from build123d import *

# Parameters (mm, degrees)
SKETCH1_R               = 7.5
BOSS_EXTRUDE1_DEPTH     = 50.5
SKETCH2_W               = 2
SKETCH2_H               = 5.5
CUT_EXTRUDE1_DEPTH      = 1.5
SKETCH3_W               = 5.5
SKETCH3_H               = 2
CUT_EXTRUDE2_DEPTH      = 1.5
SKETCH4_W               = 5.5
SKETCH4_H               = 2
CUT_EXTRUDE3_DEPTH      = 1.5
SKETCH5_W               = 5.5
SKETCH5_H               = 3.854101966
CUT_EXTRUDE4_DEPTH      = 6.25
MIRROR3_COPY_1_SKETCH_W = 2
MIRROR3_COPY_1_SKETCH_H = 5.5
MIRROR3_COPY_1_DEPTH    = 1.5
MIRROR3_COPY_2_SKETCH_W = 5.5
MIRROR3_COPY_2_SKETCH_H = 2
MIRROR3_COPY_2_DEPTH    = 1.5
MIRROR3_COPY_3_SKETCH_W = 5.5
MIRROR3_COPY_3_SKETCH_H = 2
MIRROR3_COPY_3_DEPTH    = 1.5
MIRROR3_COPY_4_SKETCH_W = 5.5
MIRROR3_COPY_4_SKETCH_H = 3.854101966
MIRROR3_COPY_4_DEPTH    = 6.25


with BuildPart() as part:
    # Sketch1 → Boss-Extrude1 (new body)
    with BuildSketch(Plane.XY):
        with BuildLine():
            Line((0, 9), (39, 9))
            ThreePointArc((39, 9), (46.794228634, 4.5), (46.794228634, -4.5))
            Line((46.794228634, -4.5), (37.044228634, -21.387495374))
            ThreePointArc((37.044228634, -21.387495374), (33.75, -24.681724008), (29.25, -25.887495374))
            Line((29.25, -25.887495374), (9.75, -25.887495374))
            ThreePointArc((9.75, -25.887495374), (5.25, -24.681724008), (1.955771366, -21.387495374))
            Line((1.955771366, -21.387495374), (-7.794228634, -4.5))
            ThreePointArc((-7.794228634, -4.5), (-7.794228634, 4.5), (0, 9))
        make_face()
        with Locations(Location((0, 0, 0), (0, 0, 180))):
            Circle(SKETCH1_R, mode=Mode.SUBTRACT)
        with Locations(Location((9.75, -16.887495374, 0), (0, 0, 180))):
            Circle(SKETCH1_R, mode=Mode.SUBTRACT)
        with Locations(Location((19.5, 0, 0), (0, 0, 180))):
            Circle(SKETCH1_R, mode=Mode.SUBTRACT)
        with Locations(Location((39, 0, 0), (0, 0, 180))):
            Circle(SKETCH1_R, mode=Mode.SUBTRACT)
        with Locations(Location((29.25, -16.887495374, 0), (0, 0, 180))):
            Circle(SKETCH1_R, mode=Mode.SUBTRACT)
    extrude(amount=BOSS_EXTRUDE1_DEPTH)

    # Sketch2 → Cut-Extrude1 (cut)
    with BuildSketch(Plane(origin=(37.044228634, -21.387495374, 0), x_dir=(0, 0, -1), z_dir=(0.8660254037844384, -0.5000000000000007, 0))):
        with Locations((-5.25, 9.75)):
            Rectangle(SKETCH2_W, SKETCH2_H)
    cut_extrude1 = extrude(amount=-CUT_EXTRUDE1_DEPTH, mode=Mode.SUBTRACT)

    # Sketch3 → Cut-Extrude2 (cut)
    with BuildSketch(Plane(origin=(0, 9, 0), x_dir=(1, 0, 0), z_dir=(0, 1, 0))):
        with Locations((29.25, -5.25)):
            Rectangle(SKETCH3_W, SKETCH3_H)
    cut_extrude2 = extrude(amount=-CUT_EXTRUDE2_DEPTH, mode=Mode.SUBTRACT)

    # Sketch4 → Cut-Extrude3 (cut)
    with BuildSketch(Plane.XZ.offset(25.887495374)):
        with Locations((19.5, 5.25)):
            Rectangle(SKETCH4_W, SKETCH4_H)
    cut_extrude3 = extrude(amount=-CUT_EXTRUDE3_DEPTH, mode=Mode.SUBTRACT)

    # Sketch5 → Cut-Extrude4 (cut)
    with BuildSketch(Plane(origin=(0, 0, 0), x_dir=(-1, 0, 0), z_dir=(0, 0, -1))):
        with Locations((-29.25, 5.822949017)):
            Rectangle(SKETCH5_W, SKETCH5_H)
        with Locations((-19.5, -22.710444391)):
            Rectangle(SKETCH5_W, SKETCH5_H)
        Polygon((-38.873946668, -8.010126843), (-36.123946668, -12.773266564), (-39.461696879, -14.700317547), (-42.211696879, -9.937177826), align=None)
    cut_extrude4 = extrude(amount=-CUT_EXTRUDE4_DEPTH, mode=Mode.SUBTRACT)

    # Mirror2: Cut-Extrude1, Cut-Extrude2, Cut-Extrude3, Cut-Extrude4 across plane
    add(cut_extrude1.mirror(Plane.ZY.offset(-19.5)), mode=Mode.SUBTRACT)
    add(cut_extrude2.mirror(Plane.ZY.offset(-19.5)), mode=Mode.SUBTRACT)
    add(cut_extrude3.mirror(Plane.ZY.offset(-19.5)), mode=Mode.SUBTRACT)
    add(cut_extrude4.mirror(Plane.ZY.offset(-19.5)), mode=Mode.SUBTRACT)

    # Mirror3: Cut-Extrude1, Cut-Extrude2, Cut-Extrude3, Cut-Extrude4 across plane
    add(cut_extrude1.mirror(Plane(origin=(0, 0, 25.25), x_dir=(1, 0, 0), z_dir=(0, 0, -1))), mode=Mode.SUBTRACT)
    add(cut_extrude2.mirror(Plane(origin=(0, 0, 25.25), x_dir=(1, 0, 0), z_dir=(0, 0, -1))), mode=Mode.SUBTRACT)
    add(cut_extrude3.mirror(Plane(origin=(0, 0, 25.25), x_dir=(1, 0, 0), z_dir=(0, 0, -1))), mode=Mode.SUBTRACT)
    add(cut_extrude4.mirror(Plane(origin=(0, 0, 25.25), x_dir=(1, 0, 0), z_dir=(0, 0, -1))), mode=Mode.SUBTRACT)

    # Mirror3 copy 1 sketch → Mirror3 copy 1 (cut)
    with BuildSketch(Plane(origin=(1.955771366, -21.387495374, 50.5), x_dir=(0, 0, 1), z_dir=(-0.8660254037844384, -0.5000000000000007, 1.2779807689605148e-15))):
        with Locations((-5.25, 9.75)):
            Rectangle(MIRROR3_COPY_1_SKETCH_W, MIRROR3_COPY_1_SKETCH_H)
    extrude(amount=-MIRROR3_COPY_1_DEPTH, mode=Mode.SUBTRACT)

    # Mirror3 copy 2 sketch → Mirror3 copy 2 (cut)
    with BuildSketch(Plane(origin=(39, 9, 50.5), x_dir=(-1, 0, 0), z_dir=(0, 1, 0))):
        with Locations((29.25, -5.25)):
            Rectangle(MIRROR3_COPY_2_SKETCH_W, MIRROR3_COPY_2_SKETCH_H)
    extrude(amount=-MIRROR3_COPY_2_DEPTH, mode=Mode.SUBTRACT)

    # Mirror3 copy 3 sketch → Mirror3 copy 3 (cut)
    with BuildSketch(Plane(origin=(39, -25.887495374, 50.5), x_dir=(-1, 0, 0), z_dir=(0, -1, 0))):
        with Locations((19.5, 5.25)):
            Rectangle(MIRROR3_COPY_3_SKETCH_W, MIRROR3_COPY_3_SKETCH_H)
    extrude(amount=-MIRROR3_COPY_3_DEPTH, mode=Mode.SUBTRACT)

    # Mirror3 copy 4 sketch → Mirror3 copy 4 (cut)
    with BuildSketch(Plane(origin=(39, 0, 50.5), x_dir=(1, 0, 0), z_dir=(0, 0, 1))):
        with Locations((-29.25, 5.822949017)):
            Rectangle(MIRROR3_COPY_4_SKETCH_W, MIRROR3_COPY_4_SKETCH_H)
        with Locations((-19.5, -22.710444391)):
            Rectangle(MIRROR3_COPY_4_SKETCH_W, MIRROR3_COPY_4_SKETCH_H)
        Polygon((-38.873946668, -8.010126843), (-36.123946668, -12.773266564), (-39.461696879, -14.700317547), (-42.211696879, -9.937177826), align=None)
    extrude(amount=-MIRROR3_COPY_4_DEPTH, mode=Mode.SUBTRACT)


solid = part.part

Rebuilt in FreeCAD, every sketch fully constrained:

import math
import FreeCAD as App
import Part
import Sketcher
Q = App.Units.Quantity

doc = App.newDocument("Part")
body = doc.addObject("PartDesign::Body", "Body")

sketch1 = body.newObject("Sketcher::SketchObject", "Sketch")
sketch1.AttachmentSupport = (doc.getObject("XY_Plane"), [""])
sketch1.MapMode = "FlatFace"
sketch1.addGeometry([
    Part.LineSegment(App.Vector(39, 9, 0), App.Vector(0, 9, 0)),
    Part.ArcOfCircle(Part.Circle(App.Vector(0, 0, 0), App.Vector(0, 0, 1), 9), math.radians(90), math.radians(210)),
    Part.LineSegment(App.Vector(-8, -4, 0), App.Vector(2, -21, 0)),
    Part.ArcOfCircle(Part.Circle(App.Vector(10, -17, 0), App.Vector(0, 0, 1), 9), math.radians(-150), math.radians(-90)),
    Part.LineSegment(App.Vector(10, -26, 0), App.Vector(29, -26, 0)),
    Part.ArcOfCircle(Part.Circle(App.Vector(29, -17, 0), App.Vector(0, 0, 1), 9), math.radians(-90), math.radians(-30)),
    Part.LineSegment(App.Vector(37, -21, 0), App.Vector(47, -4, 0)),
    Part.ArcOfCircle(Part.Circle(App.Vector(39, 0, 0), App.Vector(0, 0, 1), 9), math.radians(-30), math.radians(90)),
    Part.Circle(App.Vector(29, -17, 0), App.Vector(0, 0, 1), 8),
    Part.Circle(App.Vector(10, -17, 0), App.Vector(0, 0, 1), 8),
    Part.Circle(App.Vector(39, 0, 0), App.Vector(0, 0, 1), 8),
    Part.Circle(App.Vector(20, 0, 0), App.Vector(0, 0, 1), 8),
    Part.Circle(App.Vector(0, 0, 0), App.Vector(0, 0, 1), 8),
], False)
sketch1.addConstraint([
    Sketcher.Constraint("Tangent", 0, 2, 1, 1),
    Sketcher.Constraint("Tangent", 1, 2, 2, 1),
    Sketcher.Constraint("Tangent", 2, 2, 3, 1),
    Sketcher.Constraint("Tangent", 3, 2, 4, 1),
    Sketcher.Constraint("Tangent", 4, 2, 5, 1),
    Sketcher.Constraint("Tangent", 5, 2, 6, 1),
    Sketcher.Constraint("Tangent", 6, 2, 7, 1),
    Sketcher.Constraint("Tangent", 7, 2, 0, 1),
    Sketcher.Constraint("Horizontal", 0),
    Sketcher.Constraint("Horizontal", 4),
    Sketcher.Constraint("Coincident", 1, 3, -1, 1),
    Sketcher.Constraint("Coincident", 12, 3, -1, 1),
    Sketcher.Constraint("Coincident", 8, 3, 5, 3),
    Sketcher.Constraint("Coincident", 9, 3, 3, 3),
    Sketcher.Constraint("Coincident", 10, 3, 7, 3),
    Sketcher.Constraint("Equal", 1, 3),
    Sketcher.Constraint("Equal", 3, 5),
    Sketcher.Constraint("Equal", 5, 7),
    Sketcher.Constraint("Equal", 8, 9),
    Sketcher.Constraint("Equal", 9, 10),
    Sketcher.Constraint("Equal", 10, 11),
    Sketcher.Constraint("Equal", 11, 12),
    Sketcher.Constraint("PointOnObject", 11, 3, -1),
    Sketcher.Constraint("Horizontal", 2, 2, 5, 2),
    Sketcher.Constraint("Diameter", 8, 15.0),
    Sketcher.Constraint("Radius", 1, 9.0),
    Sketcher.Constraint("DistanceX", 0, 2, 0, 1, 39.0),
    Sketcher.Constraint("Angle", 2, Q("-60 deg")),
    Sketcher.Constraint("DistanceX", 4, 1, 4, 2, 19.5),
    Sketcher.Constraint("DistanceX", -1, 1, 11, 3, 19.5),
])
pad1 = body.newObject("PartDesign::Pad", "Pad")
pad1.Profile = sketch1
pad1.Length = 50.5

sketch2 = body.newObject("Sketcher::SketchObject", "Sketch001")
sketch2.Placement = App.Placement(App.Vector(37.044229, -21.387495, 0), App.Rotation(App.Vector(0, 0, -1), App.Vector(0.5, 0.866025404, 0), App.Vector(0.866025404, -0.5, 0), "ZXY"))
sketch2.addGeometry([
    Part.LineSegment(App.Vector(-6.2, 12.5, 0), App.Vector(-6.2, 7, 0)),
    Part.LineSegment(App.Vector(-6.2, 7, 0), App.Vector(-4.2, 7, 0)),
    Part.LineSegment(App.Vector(-4.2, 7, 0), App.Vector(-4.2, 12.5, 0)),
    Part.LineSegment(App.Vector(-4.2, 12.5, 0), App.Vector(-6.2, 12.5, 0)),
], False)
sketch2.addConstraint([
    Sketcher.Constraint("Coincident", 0, 2, 1, 1),
    Sketcher.Constraint("Coincident", 1, 2, 2, 1),
    Sketcher.Constraint("Coincident", 2, 2, 3, 1),
    Sketcher.Constraint("Coincident", 3, 2, 0, 1),
    Sketcher.Constraint("Vertical", 0),
    Sketcher.Constraint("Horizontal", 1),
    Sketcher.Constraint("Vertical", 2),
    Sketcher.Constraint("Horizontal", 3),
    Sketcher.Constraint("DistanceX", 1, 1, 1, 2, 2.0),
    Sketcher.Constraint("DistanceY", 0, 2, 0, 1, 5.5),
    Sketcher.Constraint("DistanceY", -1, 1, 0, 2, 7.0),
    Sketcher.Constraint("DistanceX", 0, 2, -1, 1, 6.25),
])
pocket1 = body.newObject("PartDesign::Pocket", "Pocket")
pocket1.Profile = sketch2
pocket1.Length = 1.5

sketch3 = body.newObject("Sketcher::SketchObject", "Sketch002")
sketch3.AttachmentSupport = (doc.getObject("XZ_Plane"), [""])
sketch3.MapMode = "FlatFace"
sketch3.AttachmentOffset = App.Placement(App.Vector(0, 0, -9), App.Rotation())
sketch3.addGeometry([
    Part.LineSegment(App.Vector(26.5, 4.2, 0), App.Vector(26.5, 6.2, 0)),
    Part.LineSegment(App.Vector(26.5, 6.2, 0), App.Vector(32, 6.2, 0)),
    Part.LineSegment(App.Vector(32, 6.2, 0), App.Vector(32, 4.2, 0)),
    Part.LineSegment(App.Vector(32, 4.2, 0), App.Vector(26.5, 4.2, 0)),
], False)
sketch3.addConstraint([
    Sketcher.Constraint("Coincident", 0, 2, 1, 1),
    Sketcher.Constraint("Coincident", 1, 2, 2, 1),
    Sketcher.Constraint("Coincident", 2, 2, 3, 1),
    Sketcher.Constraint("Coincident", 3, 2, 0, 1),
    Sketcher.Constraint("Vertical", 0),
    Sketcher.Constraint("Horizontal", 1),
    Sketcher.Constraint("Vertical", 2),
    Sketcher.Constraint("Horizontal", 3),
    Sketcher.Constraint("DistanceY", 0, 1, 0, 2, 2.0),
    Sketcher.Constraint("DistanceX", 1, 1, 1, 2, 5.5),
    Sketcher.Constraint("DistanceX", -1, 1, 1, 2, 32.0),
    Sketcher.Constraint("DistanceY", -1, 1, 0, 2, 6.25),
])
pocket2 = body.newObject("PartDesign::Pocket", "Pocket001")
pocket2.Profile = sketch3
pocket2.Length = 1.5
pocket2.Reversed = True

sketch4 = body.newObject("Sketcher::SketchObject", "Sketch003")
sketch4.AttachmentSupport = (doc.getObject("XZ_Plane"), [""])
sketch4.MapMode = "FlatFace"
sketch4.AttachmentOffset = App.Placement(App.Vector(0, 0, 25.887495), App.Rotation())
sketch4.addGeometry([
    Part.LineSegment(App.Vector(16.8, 6.2, 0), App.Vector(16.8, 4.2, 0)),
    Part.LineSegment(App.Vector(16.8, 4.2, 0), App.Vector(22.2, 4.2, 0)),
    Part.LineSegment(App.Vector(22.2, 4.2, 0), App.Vector(22.2, 6.2, 0)),
    Part.LineSegment(App.Vector(22.2, 6.2, 0), App.Vector(16.8, 6.2, 0)),
], False)
sketch4.addConstraint([
    Sketcher.Constraint("Coincident", 0, 2, 1, 1),
    Sketcher.Constraint("Coincident", 1, 2, 2, 1),
    Sketcher.Constraint("Coincident", 2, 2, 3, 1),
    Sketcher.Constraint("Coincident", 3, 2, 0, 1),
    Sketcher.Constraint("Vertical", 0),
    Sketcher.Constraint("Horizontal", 1),
    Sketcher.Constraint("Vertical", 2),
    Sketcher.Constraint("Horizontal", 3),
    Sketcher.Constraint("DistanceY", 0, 2, 0, 1, 2.0),
    Sketcher.Constraint("DistanceX", 1, 1, 1, 2, 5.5),
    Sketcher.Constraint("DistanceX", -1, 1, 0, 2, 16.75),
    Sketcher.Constraint("DistanceY", -1, 1, 0, 2, 4.25),
])
pocket3 = body.newObject("PartDesign::Pocket", "Pocket002")
pocket3.Profile = sketch4
pocket3.Length = 1.5

sketch5 = body.newObject("Sketcher::SketchObject", "Sketch004")
sketch5.AttachmentSupport = (doc.getObject("XY_Plane"), [""])
sketch5.MapMode = "FlatFace"
sketch5.addGeometry([
    Part.LineSegment(App.Vector(32, 7.8, 0), App.Vector(32, 3.9, 0)),
    Part.LineSegment(App.Vector(32, 3.9, 0), App.Vector(26.5, 3.9, 0)),
    Part.LineSegment(App.Vector(26.5, 3.9, 0), App.Vector(26.5, 7.8, 0)),
    Part.LineSegment(App.Vector(26.5, 7.8, 0), App.Vector(32, 7.8, 0)),
    Part.LineSegment(App.Vector(22.2, -20.8, 0), App.Vector(22.2, -24.6, 0)),
    Part.LineSegment(App.Vector(22.2, -24.6, 0), App.Vector(16.8, -24.6, 0)),
    Part.LineSegment(App.Vector(16.8, -24.6, 0), App.Vector(16.8, -20.8, 0)),
    Part.LineSegment(App.Vector(16.8, -20.8, 0), App.Vector(22.2, -20.8, 0)),
    Part.LineSegment(App.Vector(36.1, -12.8, 0), App.Vector(38.9, -8, 0)),
    Part.LineSegment(App.Vector(38.9, -8, 0), App.Vector(42.2, -9.9, 0)),
    Part.LineSegment(App.Vector(42.2, -9.9, 0), App.Vector(39.5, -14.7, 0)),
    Part.LineSegment(App.Vector(39.5, -14.7, 0), App.Vector(36.1, -12.8, 0)),
], False)
sketch5.addConstraint([
    Sketcher.Constraint("Coincident", 0, 2, 1, 1),
    Sketcher.Constraint("Coincident", 1, 2, 2, 1),
    Sketcher.Constraint("Coincident", 2, 2, 3, 1),
    Sketcher.Constraint("Coincident", 3, 2, 0, 1),
    Sketcher.Constraint("Coincident", 4, 2, 5, 1),
    Sketcher.Constraint("Coincident", 5, 2, 6, 1),
    Sketcher.Constraint("Coincident", 6, 2, 7, 1),
    Sketcher.Constraint("Coincident", 7, 2, 4, 1),
    Sketcher.Constraint("Coincident", 8, 2, 9, 1),
    Sketcher.Constraint("Coincident", 9, 2, 10, 1),
    Sketcher.Constraint("Coincident", 10, 2, 11, 1),
    Sketcher.Constraint("Coincident", 11, 2, 8, 1),
    Sketcher.Constraint("Vertical", 0),
    Sketcher.Constraint("Horizontal", 1),
    Sketcher.Constraint("Vertical", 2),
    Sketcher.Constraint("Horizontal", 3),
    Sketcher.Constraint("Vertical", 4),
    Sketcher.Constraint("Horizontal", 5),
    Sketcher.Constraint("Vertical", 6),
    Sketcher.Constraint("Horizontal", 7),
    Sketcher.Constraint("Perpendicular", 8, 9),
    Sketcher.Constraint("Perpendicular", 9, 10),
    Sketcher.Constraint("Perpendicular", 10, 11),
    Sketcher.Constraint("Equal", 3, 5),
    Sketcher.Constraint("Equal", 2, 4),
    Sketcher.Constraint("Angle", 8, Q("60 deg")),
    Sketcher.Constraint("DistanceX", 1, 2, 1, 1, 5.5),
    Sketcher.Constraint("DistanceX", -1, 1, 0, 2, 32.0),
    Sketcher.Constraint("Distance", 8, 5.5),
    Sketcher.Constraint("DistanceY", -1, 1, 2, 2, 7.75),
    Sketcher.Constraint("DistanceX", -1, 1, 4, 2, 22.25),
    Sketcher.Constraint("DistanceY", 0, 2, 0, 1, 3.854102),
    Sketcher.Constraint("Distance", 9, 3.854102),
    Sketcher.Constraint("DistanceY", 6, 2, 1, 2, 24.679291),
    Sketcher.Constraint("DistanceX", -1, 1, 8, 2, 38.873947),
    Sketcher.Constraint("DistanceY", 8, 2, -1, 1, 8.010127),
])
pocket4 = body.newObject("PartDesign::Pocket", "Pocket003")
pocket4.Profile = sketch5
pocket4.Length = 6.25
pocket4.Reversed = True
doc.recompute()

datumplane = body.newObject("PartDesign::Plane", "DatumPlane")
datumplane.AttachmentSupport = (doc.getObject("YZ_Plane"), [""])
datumplane.MapMode = "FlatFace"
datumplane.AttachmentOffset = App.Placement(App.Vector(0, 0, 19.5), App.Rotation())
mirrored = body.newObject("PartDesign::Mirrored", "Mirrored")
mirrored.Originals = [pocket1, pocket2, pocket3, pocket4]
mirrored.MirrorPlane = (datumplane, [""])
body.Tip = mirrored
doc.recompute()

datumplane2 = body.newObject("PartDesign::Plane", "DatumPlane001")
datumplane2.AttachmentSupport = (doc.getObject("XY_Plane"), [""])
datumplane2.MapMode = "FlatFace"
datumplane2.AttachmentOffset = App.Placement(App.Vector(0, 0, 25.25), App.Rotation())
mirrored2 = body.newObject("PartDesign::Mirrored", "Mirrored001")
mirrored2.Originals = [pocket1, pocket2, pocket3, pocket4]
mirrored2.MirrorPlane = (datumplane2, [""])
body.Tip = mirrored2

sketch6 = body.newObject("Sketcher::SketchObject", "Sketch005")
sketch6.Placement = App.Placement(App.Vector(1.955771, -21.387495, 50.5), App.Rotation(App.Vector(0, 0, 1), App.Vector(-0.5, 0.866025404, 0), App.Vector(-0.866025404, -0.5, 0), "ZXY"))
sketch6.addGeometry([
    Part.LineSegment(App.Vector(-6.2, 12.5, 0), App.Vector(-6.2, 7, 0)),
    Part.LineSegment(App.Vector(-6.2, 7, 0), App.Vector(-4.2, 7, 0)),
    Part.LineSegment(App.Vector(-4.2, 7, 0), App.Vector(-4.2, 12.5, 0)),
    Part.LineSegment(App.Vector(-4.2, 12.5, 0), App.Vector(-6.2, 12.5, 0)),
], False)
sketch6.addConstraint([
    Sketcher.Constraint("Coincident", 0, 2, 1, 1),
    Sketcher.Constraint("Coincident", 1, 2, 2, 1),
    Sketcher.Constraint("Coincident", 2, 2, 3, 1),
    Sketcher.Constraint("Coincident", 3, 2, 0, 1),
    Sketcher.Constraint("Vertical", 0),
    Sketcher.Constraint("Horizontal", 1),
    Sketcher.Constraint("Vertical", 2),
    Sketcher.Constraint("Horizontal", 3),
    Sketcher.Constraint("DistanceX", 1, 1, 1, 2, 2.0),
    Sketcher.Constraint("DistanceY", 0, 2, 0, 1, 5.5),
    Sketcher.Constraint("DistanceY", -1, 1, 0, 2, 7.0),
    Sketcher.Constraint("DistanceX", 0, 2, -1, 1, 6.25),
])
pocket5 = body.newObject("PartDesign::Pocket", "Pocket004")
pocket5.Profile = sketch6
pocket5.Length = 1.5

sketch7 = body.newObject("Sketcher::SketchObject", "Sketch006")
sketch7.AttachmentSupport = (doc.getObject("XZ_Plane"), [""])
sketch7.MapMode = "FlatFace"
sketch7.AttachmentOffset = App.Placement(App.Vector(0, 0, -9), App.Rotation())
sketch7.addGeometry([
    Part.LineSegment(App.Vector(12.5, 46.2, 0), App.Vector(12.5, 44.2, 0)),
    Part.LineSegment(App.Vector(12.5, 44.2, 0), App.Vector(7, 44.2, 0)),
    Part.LineSegment(App.Vector(7, 44.2, 0), App.Vector(7, 46.2, 0)),
    Part.LineSegment(App.Vector(7, 46.2, 0), App.Vector(12.5, 46.2, 0)),
], False)
sketch7.addConstraint([
    Sketcher.Constraint("Coincident", 0, 2, 1, 1),
    Sketcher.Constraint("Coincident", 1, 2, 2, 1),
    Sketcher.Constraint("Coincident", 2, 2, 3, 1),
    Sketcher.Constraint("Coincident", 3, 2, 0, 1),
    Sketcher.Constraint("Vertical", 0),
    Sketcher.Constraint("Horizontal", 1),
    Sketcher.Constraint("Vertical", 2),
    Sketcher.Constraint("Horizontal", 3),
    Sketcher.Constraint("DistanceY", 0, 2, 0, 1, 2.0),
    Sketcher.Constraint("DistanceX", 1, 2, 1, 1, 5.5),
    Sketcher.Constraint("DistanceX", -1, 1, 1, 2, 7.0),
    Sketcher.Constraint("DistanceY", -1, 1, 0, 2, 44.25),
])
pocket6 = body.newObject("PartDesign::Pocket", "Pocket005")
pocket6.Profile = sketch7
pocket6.Length = 1.5
pocket6.Reversed = True

sketch8 = body.newObject("Sketcher::SketchObject", "Sketch007")
sketch8.AttachmentSupport = (doc.getObject("XZ_Plane"), [""])
sketch8.MapMode = "FlatFace"
sketch8.AttachmentOffset = App.Placement(App.Vector(0, 0, 25.887495), App.Rotation())
sketch8.addGeometry([
    Part.LineSegment(App.Vector(22.2, 44.2, 0), App.Vector(22.2, 46.2, 0)),
    Part.LineSegment(App.Vector(22.2, 46.2, 0), App.Vector(16.8, 46.2, 0)),
    Part.LineSegment(App.Vector(16.8, 46.2, 0), App.Vector(16.8, 44.2, 0)),
    Part.LineSegment(App.Vector(16.8, 44.2, 0), App.Vector(22.2, 44.2, 0)),
], False)
sketch8.addConstraint([
    Sketcher.Constraint("Coincident", 0, 2, 1, 1),
    Sketcher.Constraint("Coincident", 1, 2, 2, 1),
    Sketcher.Constraint("Coincident", 2, 2, 3, 1),
    Sketcher.Constraint("Coincident", 3, 2, 0, 1),
    Sketcher.Constraint("Vertical", 0),
    Sketcher.Constraint("Horizontal", 1),
    Sketcher.Constraint("Vertical", 2),
    Sketcher.Constraint("Horizontal", 3),
    Sketcher.Constraint("DistanceY", 0, 1, 0, 2, 2.0),
    Sketcher.Constraint("DistanceX", 1, 2, 1, 1, 5.5),
    Sketcher.Constraint("DistanceX", -1, 1, 0, 2, 22.25),
    Sketcher.Constraint("DistanceY", -1, 1, 0, 2, 46.25),
])
pocket7 = body.newObject("PartDesign::Pocket", "Pocket006")
pocket7.Profile = sketch8
pocket7.Length = 1.5

sketch9 = body.newObject("Sketcher::SketchObject", "Sketch008")
sketch9.AttachmentSupport = (doc.getObject("XY_Plane"), [""])
sketch9.MapMode = "FlatFace"
sketch9.AttachmentOffset = App.Placement(App.Vector(0, 0, 50.5), App.Rotation())
sketch9.addGeometry([
    Part.LineSegment(App.Vector(7, 7.8, 0), App.Vector(7, 3.9, 0)),
    Part.LineSegment(App.Vector(7, 3.9, 0), App.Vector(12.5, 3.9, 0)),
    Part.LineSegment(App.Vector(12.5, 3.9, 0), App.Vector(12.5, 7.8, 0)),
    Part.LineSegment(App.Vector(12.5, 7.8, 0), App.Vector(7, 7.8, 0)),
    Part.LineSegment(App.Vector(16.8, -20.8, 0), App.Vector(16.8, -24.6, 0)),
    Part.LineSegment(App.Vector(16.8, -24.6, 0), App.Vector(22.2, -24.6, 0)),
    Part.LineSegment(App.Vector(22.2, -24.6, 0), App.Vector(22.2, -20.8, 0)),
    Part.LineSegment(App.Vector(22.2, -20.8, 0), App.Vector(16.8, -20.8, 0)),
    Part.LineSegment(App.Vector(2.9, -12.8, 0), App.Vector(0.1, -8, 0)),
    Part.LineSegment(App.Vector(0.1, -8, 0), App.Vector(-3.2, -9.9, 0)),
    Part.LineSegment(App.Vector(-3.2, -9.9, 0), App.Vector(-0.5, -14.7, 0)),
    Part.LineSegment(App.Vector(-0.5, -14.7, 0), App.Vector(2.9, -12.8, 0)),
], False)
sketch9.addConstraint([
    Sketcher.Constraint("Coincident", 0, 2, 1, 1),
    Sketcher.Constraint("Coincident", 1, 2, 2, 1),
    Sketcher.Constraint("Coincident", 2, 2, 3, 1),
    Sketcher.Constraint("Coincident", 3, 2, 0, 1),
    Sketcher.Constraint("Coincident", 4, 2, 5, 1),
    Sketcher.Constraint("Coincident", 5, 2, 6, 1),
    Sketcher.Constraint("Coincident", 6, 2, 7, 1),
    Sketcher.Constraint("Coincident", 7, 2, 4, 1),
    Sketcher.Constraint("Coincident", 8, 2, 9, 1),
    Sketcher.Constraint("Coincident", 9, 2, 10, 1),
    Sketcher.Constraint("Coincident", 10, 2, 11, 1),
    Sketcher.Constraint("Coincident", 11, 2, 8, 1),
    Sketcher.Constraint("Vertical", 0),
    Sketcher.Constraint("Horizontal", 1),
    Sketcher.Constraint("Vertical", 2),
    Sketcher.Constraint("Horizontal", 3),
    Sketcher.Constraint("Vertical", 4),
    Sketcher.Constraint("Horizontal", 5),
    Sketcher.Constraint("Vertical", 6),
    Sketcher.Constraint("Horizontal", 7),
    Sketcher.Constraint("Perpendicular", 8, 9),
    Sketcher.Constraint("Perpendicular", 9, 10),
    Sketcher.Constraint("Perpendicular", 10, 11),
    Sketcher.Constraint("Equal", 3, 5),
    Sketcher.Constraint("Equal", 2, 4),
    Sketcher.Constraint("Angle", 8, Q("120 deg")),
    Sketcher.Constraint("DistanceX", 1, 1, 1, 2, 5.5),
    Sketcher.Constraint("DistanceX", -1, 1, 0, 2, 7.0),
    Sketcher.Constraint("Distance", 8, 5.5),
    Sketcher.Constraint("DistanceY", -1, 1, 2, 2, 7.75),
    Sketcher.Constraint("DistanceX", -1, 1, 4, 2, 16.75),
    Sketcher.Constraint("DistanceY", 0, 2, 0, 1, 3.854102),
    Sketcher.Constraint("Distance", 9, 3.854102),
    Sketcher.Constraint("DistanceY", 6, 2, 1, 2, 24.679291),
    Sketcher.Constraint("DistanceX", -1, 1, 8, 2, 0.126053),
    Sketcher.Constraint("DistanceY", 8, 2, -1, 1, 8.010127),
])
pocket8 = body.newObject("PartDesign::Pocket", "Pocket007")
pocket8.Profile = sketch9
pocket8.Length = 6.25

doc.recompute()
